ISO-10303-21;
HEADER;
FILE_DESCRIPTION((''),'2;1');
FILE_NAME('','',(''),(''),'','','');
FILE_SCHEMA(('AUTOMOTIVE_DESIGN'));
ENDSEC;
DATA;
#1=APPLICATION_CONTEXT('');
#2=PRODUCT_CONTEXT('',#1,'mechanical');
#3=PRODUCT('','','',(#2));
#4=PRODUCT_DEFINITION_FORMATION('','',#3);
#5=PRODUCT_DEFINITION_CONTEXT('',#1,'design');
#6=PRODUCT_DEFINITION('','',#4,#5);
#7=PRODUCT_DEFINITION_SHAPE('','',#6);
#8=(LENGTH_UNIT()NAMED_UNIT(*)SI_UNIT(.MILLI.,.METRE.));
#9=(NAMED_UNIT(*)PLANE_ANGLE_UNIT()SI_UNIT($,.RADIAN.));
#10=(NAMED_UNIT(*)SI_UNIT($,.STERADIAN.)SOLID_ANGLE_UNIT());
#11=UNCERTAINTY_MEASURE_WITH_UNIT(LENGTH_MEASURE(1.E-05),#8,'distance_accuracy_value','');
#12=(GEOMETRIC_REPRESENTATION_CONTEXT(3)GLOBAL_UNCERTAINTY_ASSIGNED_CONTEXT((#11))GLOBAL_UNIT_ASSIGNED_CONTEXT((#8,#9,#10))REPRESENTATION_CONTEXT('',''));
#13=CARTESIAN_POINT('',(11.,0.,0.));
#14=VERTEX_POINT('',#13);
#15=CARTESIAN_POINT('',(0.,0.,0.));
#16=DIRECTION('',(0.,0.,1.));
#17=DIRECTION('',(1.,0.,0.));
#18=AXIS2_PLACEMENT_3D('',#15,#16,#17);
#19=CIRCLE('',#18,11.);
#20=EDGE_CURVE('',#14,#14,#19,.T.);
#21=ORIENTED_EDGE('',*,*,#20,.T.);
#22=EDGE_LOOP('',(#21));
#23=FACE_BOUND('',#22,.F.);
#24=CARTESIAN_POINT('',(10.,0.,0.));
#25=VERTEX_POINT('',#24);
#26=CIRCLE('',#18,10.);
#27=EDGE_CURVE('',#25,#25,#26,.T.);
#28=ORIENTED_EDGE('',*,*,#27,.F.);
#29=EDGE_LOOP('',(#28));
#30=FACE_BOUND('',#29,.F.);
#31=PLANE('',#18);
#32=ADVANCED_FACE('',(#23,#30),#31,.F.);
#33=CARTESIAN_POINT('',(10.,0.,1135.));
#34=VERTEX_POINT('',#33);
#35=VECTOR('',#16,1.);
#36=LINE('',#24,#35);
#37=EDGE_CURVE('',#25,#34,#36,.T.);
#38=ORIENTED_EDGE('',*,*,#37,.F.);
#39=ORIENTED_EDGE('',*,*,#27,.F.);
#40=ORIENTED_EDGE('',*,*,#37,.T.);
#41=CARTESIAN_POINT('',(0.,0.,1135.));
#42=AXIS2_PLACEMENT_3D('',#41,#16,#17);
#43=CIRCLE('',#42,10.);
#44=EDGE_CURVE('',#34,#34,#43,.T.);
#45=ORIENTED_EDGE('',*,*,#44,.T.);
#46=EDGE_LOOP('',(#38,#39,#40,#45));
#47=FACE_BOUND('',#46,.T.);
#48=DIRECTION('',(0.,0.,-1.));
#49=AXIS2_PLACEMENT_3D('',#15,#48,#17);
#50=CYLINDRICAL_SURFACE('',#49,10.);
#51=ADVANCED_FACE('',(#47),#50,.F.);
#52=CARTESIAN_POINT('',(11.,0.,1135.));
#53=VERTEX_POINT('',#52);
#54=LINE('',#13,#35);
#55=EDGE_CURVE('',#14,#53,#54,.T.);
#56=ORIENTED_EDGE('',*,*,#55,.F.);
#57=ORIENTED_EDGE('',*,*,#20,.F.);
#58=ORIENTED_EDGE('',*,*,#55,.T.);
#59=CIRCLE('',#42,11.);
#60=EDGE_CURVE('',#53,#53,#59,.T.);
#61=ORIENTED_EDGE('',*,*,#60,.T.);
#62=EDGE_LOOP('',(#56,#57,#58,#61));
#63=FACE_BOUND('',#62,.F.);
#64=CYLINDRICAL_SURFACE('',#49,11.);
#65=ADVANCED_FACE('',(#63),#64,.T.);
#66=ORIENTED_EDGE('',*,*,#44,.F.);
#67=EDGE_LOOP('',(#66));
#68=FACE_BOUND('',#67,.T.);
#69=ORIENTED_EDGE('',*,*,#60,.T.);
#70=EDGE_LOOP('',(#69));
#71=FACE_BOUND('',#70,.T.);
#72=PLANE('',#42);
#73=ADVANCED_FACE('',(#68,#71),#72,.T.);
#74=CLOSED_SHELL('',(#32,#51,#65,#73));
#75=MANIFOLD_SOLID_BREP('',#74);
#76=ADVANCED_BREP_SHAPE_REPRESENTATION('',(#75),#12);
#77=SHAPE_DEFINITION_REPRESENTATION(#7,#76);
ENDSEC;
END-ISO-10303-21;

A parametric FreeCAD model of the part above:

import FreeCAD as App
import Part
import Sketcher
from FreeCAD import Vector

doc = App.newDocument("Part")
body = doc.addObject("PartDesign::Body", "Body")

# Sketch on XY plane
sketch1 = body.newObject("Sketcher::SketchObject", "Sketch")
sketch1.AttachmentSupport = (doc.getObject("XY_Plane"), [""])
sketch1.MapMode = "FlatFace"
sketch1.addGeometry(Part.Circle(Vector(0, 0, 0), Vector(0, 0, 1), 11), False)
sketch1.addGeometry(Part.Circle(Vector(0, 0, 0), Vector(0, 0, 1), 10), False)
sketch1.addConstraint(Sketcher.Constraint("Coincident", 0, 3, -1, 1))
sketch1.addConstraint(Sketcher.Constraint("Coincident", 1, 3, -1, 1))
sketch1.addConstraint(Sketcher.Constraint("Diameter", 0, 22.0))
sketch1.addConstraint(Sketcher.Constraint("Diameter", 1, 20.0))
pad1 = body.newObject("PartDesign::Pad", "Pad")
pad1.Profile = sketch1
pad1.Length = 1135

doc.recompute()
